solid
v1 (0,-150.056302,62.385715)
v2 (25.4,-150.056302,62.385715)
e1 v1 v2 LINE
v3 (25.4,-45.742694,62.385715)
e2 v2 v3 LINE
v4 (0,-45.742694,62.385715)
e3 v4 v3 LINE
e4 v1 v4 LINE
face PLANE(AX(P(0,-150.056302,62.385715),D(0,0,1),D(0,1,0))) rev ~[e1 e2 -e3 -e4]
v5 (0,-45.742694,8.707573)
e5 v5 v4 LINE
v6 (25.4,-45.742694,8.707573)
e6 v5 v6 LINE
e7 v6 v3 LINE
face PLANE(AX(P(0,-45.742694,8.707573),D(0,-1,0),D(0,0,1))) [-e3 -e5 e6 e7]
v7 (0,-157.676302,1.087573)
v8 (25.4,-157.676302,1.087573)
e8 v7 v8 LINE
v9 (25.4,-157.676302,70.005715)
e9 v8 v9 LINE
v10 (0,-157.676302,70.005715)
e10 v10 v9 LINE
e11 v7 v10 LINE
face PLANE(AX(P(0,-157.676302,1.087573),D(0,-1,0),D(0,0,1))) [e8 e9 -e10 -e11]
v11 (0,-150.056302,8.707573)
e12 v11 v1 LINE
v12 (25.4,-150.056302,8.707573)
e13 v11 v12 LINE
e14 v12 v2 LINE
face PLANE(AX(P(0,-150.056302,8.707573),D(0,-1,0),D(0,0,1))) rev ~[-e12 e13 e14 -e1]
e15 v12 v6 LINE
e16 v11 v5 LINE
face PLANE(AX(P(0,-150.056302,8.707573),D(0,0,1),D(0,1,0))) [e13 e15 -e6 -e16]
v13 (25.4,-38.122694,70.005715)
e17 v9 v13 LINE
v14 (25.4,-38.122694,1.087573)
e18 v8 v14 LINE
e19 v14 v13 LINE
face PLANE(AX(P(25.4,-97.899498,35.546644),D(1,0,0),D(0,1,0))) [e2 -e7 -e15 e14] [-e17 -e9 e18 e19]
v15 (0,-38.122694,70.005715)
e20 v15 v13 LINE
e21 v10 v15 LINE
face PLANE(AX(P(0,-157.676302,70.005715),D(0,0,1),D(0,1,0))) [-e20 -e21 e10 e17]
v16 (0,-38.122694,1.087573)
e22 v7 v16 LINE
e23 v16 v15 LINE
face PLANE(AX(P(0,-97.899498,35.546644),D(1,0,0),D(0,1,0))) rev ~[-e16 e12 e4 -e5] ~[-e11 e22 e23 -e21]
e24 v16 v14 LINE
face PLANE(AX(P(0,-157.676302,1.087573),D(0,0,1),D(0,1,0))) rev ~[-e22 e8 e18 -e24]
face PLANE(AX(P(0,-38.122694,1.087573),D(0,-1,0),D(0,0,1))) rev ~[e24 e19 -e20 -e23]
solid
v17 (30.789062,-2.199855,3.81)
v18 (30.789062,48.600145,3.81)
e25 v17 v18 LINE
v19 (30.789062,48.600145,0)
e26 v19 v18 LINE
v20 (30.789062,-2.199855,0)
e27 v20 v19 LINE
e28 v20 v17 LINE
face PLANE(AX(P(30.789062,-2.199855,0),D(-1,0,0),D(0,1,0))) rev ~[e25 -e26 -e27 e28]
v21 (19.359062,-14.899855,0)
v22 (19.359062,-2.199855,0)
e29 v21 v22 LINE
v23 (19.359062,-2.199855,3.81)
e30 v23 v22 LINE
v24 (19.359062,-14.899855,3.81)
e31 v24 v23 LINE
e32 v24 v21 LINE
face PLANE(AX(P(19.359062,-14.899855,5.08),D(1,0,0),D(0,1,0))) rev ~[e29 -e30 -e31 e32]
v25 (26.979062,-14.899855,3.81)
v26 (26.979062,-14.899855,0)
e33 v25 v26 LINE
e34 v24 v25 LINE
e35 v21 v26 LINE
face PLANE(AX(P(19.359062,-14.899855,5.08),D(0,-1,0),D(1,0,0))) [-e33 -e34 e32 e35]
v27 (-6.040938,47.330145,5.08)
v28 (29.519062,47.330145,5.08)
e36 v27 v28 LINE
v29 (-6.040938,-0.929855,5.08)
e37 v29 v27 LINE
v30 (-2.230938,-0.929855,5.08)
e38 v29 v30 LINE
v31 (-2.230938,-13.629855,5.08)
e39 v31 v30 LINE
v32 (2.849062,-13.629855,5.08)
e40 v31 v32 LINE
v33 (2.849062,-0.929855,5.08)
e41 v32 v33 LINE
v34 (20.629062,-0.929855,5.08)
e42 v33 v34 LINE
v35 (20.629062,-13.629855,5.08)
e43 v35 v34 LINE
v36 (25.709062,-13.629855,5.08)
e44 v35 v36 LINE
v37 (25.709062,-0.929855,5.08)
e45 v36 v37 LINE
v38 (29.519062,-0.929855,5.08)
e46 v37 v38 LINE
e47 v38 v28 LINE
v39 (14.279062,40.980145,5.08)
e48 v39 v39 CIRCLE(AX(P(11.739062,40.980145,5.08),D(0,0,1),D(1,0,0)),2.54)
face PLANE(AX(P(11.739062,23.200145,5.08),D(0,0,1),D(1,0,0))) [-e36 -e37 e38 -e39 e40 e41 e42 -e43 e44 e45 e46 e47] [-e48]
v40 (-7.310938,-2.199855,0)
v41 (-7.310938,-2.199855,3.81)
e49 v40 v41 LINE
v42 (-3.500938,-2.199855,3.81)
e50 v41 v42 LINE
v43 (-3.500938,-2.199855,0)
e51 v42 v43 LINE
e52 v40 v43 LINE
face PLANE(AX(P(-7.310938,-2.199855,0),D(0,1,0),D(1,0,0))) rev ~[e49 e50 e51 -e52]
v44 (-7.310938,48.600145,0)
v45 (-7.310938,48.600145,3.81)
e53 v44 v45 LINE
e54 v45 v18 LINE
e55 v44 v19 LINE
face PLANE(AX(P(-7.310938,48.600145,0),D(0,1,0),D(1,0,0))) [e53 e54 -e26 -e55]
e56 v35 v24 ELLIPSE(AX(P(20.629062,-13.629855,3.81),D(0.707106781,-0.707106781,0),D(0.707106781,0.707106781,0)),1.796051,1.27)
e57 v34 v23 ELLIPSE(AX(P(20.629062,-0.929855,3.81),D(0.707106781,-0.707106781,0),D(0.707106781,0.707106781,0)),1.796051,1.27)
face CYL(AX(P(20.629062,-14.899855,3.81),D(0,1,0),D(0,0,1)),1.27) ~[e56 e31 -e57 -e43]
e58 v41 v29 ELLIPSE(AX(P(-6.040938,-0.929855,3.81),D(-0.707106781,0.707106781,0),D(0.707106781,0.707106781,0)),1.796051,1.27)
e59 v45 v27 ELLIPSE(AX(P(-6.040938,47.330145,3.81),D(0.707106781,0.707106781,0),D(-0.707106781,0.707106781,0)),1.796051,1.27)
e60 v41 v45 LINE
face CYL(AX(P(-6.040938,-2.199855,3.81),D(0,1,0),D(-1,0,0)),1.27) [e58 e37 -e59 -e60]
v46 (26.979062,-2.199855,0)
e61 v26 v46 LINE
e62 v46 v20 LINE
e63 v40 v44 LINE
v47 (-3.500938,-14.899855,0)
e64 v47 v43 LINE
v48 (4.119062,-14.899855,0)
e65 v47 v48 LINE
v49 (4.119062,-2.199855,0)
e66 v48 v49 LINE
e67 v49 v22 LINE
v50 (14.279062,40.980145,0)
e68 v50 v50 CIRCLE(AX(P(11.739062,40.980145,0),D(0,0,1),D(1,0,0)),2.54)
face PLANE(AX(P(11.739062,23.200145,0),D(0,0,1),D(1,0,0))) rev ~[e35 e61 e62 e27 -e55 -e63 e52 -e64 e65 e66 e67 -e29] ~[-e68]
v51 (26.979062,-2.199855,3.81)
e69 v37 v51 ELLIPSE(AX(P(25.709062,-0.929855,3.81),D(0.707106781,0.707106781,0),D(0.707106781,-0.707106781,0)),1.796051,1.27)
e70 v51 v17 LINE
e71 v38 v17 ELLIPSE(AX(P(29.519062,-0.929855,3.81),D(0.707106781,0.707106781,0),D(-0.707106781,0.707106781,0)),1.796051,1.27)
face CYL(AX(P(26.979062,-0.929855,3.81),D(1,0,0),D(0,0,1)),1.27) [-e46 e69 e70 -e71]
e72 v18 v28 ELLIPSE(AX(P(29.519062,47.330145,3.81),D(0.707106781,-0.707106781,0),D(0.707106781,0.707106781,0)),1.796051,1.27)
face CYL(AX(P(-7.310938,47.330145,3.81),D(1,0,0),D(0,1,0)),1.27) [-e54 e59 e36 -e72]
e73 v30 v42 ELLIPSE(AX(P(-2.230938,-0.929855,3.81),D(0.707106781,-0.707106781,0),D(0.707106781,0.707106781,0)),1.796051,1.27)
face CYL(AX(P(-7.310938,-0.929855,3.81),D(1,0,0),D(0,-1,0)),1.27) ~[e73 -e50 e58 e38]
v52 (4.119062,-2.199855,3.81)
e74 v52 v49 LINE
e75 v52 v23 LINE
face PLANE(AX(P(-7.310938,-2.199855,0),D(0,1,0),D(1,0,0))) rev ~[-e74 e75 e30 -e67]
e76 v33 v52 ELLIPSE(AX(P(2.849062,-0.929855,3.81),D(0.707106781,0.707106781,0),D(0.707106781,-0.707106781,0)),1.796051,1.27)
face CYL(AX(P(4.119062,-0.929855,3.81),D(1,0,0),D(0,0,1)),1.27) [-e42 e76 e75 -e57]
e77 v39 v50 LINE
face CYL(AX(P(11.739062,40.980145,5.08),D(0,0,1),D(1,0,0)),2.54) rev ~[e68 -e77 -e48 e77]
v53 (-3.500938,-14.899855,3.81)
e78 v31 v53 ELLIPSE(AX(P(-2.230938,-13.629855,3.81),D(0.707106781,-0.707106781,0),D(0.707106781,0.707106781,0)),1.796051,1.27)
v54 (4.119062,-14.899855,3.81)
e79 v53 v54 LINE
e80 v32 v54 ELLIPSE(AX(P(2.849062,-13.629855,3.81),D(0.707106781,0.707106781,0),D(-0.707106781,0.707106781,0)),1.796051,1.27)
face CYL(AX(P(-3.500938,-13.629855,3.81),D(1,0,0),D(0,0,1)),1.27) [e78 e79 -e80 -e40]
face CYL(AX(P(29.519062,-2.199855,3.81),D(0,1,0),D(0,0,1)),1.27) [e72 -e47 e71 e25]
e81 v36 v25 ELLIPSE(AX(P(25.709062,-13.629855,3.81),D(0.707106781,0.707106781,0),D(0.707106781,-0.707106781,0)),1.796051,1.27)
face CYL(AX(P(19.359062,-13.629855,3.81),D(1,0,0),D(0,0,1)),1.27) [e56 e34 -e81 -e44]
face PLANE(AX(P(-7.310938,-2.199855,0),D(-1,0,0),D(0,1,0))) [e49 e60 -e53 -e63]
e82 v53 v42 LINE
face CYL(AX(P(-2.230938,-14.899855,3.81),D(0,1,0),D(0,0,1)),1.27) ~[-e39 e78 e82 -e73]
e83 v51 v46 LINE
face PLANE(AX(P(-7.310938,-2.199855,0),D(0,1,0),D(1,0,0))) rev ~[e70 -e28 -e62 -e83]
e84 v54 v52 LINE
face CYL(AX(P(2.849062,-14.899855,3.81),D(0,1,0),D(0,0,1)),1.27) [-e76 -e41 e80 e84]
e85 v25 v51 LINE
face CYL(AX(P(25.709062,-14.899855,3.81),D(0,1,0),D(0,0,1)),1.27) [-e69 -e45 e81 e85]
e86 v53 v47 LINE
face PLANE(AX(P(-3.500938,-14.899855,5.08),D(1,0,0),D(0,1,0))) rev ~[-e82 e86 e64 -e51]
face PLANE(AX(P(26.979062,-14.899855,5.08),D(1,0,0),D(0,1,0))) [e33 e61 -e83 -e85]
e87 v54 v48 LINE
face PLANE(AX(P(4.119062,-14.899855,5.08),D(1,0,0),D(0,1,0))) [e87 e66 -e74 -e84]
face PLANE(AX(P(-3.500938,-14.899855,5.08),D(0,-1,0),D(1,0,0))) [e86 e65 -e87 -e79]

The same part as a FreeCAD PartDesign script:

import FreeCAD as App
import Part
import Sketcher

V = App.Vector
Q = App.Units.Quantity


def edges_at(feature, points):
    """Names of the edges that pass closest to the given points."""
    edges = feature.Shape.Edges
    near = lambda p: min(range(len(edges)), key=lambda i: edges[i].distToShape(Part.Vertex(*p))[0])
    return sorted({f"Edge{near(p) + 1}" for p in points})


def add_polygon(sketch, points):
    """Adds a closed chain of lines whose ends are joined by coincident constraints."""
    first, n = sketch.GeometryCount, len(points)
    for a, b in zip(points, points[1:] + points[:1]):
        sketch.addGeometry(Part.LineSegment(App.Vector(*a, 0), App.Vector(*b, 0)), False)
    for i in range(n):
        sketch.addConstraint(Sketcher.Constraint("Coincident", first + i, 2, first + (i + 1) % n, 1))

doc = App.newDocument("Part")
body = doc.addObject("PartDesign::Body", "Body")

sketch1 = body.newObject("Sketcher::SketchObject", "Sketch")
sketch1.AttachmentSupport = (doc.getObject("XY_Plane"), [""])
sketch1.MapMode = "FlatFace"
add_polygon(sketch1, [(-7.310938, 48.600145), (-7.310938, -2.199855), (30.789062, -2.199855), (30.789062, 48.600145)])
sketch1.addConstraint([
    Sketcher.Constraint("Vertical", 0),
    Sketcher.Constraint("Horizontal", 1),
    Sketcher.Constraint("Vertical", 2),
    Sketcher.Constraint("Horizontal", 3),
    Sketcher.Constraint("DistanceY", 0, 2, 0, 1, Q("2 in")),
    Sketcher.Constraint("DistanceX", 1, 1, 1, 2, Q("1.5 in")),
    Sketcher.Constraint("DistanceX", 0, 2, -1, 1, Q("7.310938 mm")),
    Sketcher.Constraint("DistanceY", 0, 2, -1, 1, Q("2.199855 mm")),
])
pad1 = body.newObject("PartDesign::Pad", "Pad")
pad1.Profile = sketch1
pad1.Length = Q("0.2 in")

sketch2 = body.newObject("Sketcher::SketchObject", "Sketch001")
sketch2.AttachmentSupport = (doc.getObject("XY_Plane"), [""])
sketch2.MapMode = "FlatFace"
sketch2.AttachmentOffset = App.Placement(V(0, 0, 0.2 * 25.4), App.Rotation())
sketch2.addGeometry(Part.Circle(V(11.739062, 40.980145, 0), V(0, 0, 1), 2.54), False)
sketch2.addConstraint([
    Sketcher.Constraint("Diameter", 0, Q("0.2 in")),
    Sketcher.Constraint("DistanceX", -1, 1, 0, 3, Q("11.739062 mm")),
    Sketcher.Constraint("DistanceY", -1, 1, 0, 3, Q("40.980145 mm")),
])
pocket1 = body.newObject("PartDesign::Pocket", "Pocket")
pocket1.Profile = sketch2
pocket1.Type = "ThroughAll"

sketch3 = body.newObject("Sketcher::SketchObject", "Sketch002")
sketch3.AttachmentSupport = (doc.getObject("XY_Plane"), [""])
sketch3.MapMode = "FlatFace"
sketch3.AttachmentOffset = App.Placement(V(0, 0, 0.2 * 25.4), App.Rotation())
add_polygon(sketch3, [(19.359062, -2.199855), (19.359062, -14.899855), (26.979062, -14.899855), (26.979062, -2.199855)])
add_polygon(sketch3, [(-3.500938, -2.199855), (-3.500938, -14.899855), (4.119062, -14.899855), (4.119062, -2.199855)])
sketch3.addConstraint([
    Sketcher.Constraint("Vertical", 0),
    Sketcher.Constraint("Horizontal", 1),
    Sketcher.Constraint("Vertical", 2),
    Sketcher.Constraint("Horizontal", 3),
    Sketcher.Constraint("Vertical", 4),
    Sketcher.Constraint("Horizontal", 5),
    Sketcher.Constraint("Vertical", 6),
    Sketcher.Constraint("Horizontal", 7),
    Sketcher.Constraint("Horizontal", 1, 2, 4, 2),
    Sketcher.Constraint("Horizontal", 3, 2, 6, 2),
    Sketcher.Constraint("Equal", 3, 5),
    Sketcher.Constraint("DistanceX", 1, 1, 1, 2, Q("0.3 in")),
    Sketcher.Constraint("DistanceY", 0, 2, 0, 1, Q("0.5 in")),
    Sketcher.Constraint("DistanceX", 4, 2, 0, 2, Q("0.9 in")),
    Sketcher.Constraint("DistanceX", -1, 1, 0, 2, Q("19.359062 mm")),
    Sketcher.Constraint("DistanceY", 0, 2, -1, 1, Q("14.899855 mm")),
])
pad2 = body.newObject("PartDesign::Pad", "Pad001")
pad2.Profile = sketch3
pad2.Length = Q("0.2 in")
pad2.Reversed = True
doc.recompute()

fillet = body.newObject("PartDesign::Fillet", "Fillet")
fillet.Base = (pad2, edges_at(pad2, [
    (-7.311, 23.2, 5.08),
    (11.739, 48.6, 5.08),
    (30.789, 23.2, 5.08),
    (28.884, -2.2, 5.08),
    (23.169, -14.9, 5.08),
    (19.359, -8.55, 5.08),
    (11.739, -2.2, 5.08),
    (4.119, -8.55, 5.08),
    (-3.501, -8.55, 5.08),
    (-5.406, -2.2, 5.08),
    (0.309, -14.9, 5.08),
    (26.979, -8.55, 5.08),
]))
fillet.Radius = Q("0.05 in")
body2 = doc.addObject("PartDesign::Body", "Body001")

sketch4 = body2.newObject("Sketcher::SketchObject", "Sketch003")
sketch4.AttachmentSupport = (doc.getObject("YZ_Plane001"), [""])
sketch4.MapMode = "FlatFace"
add_polygon(sketch4, [(-157.676302, 70.005715), (-157.676302, 1.087573), (-38.122694, 1.087573), (-38.122694, 70.005715)])
add_polygon(sketch4, [(-45.742694, 8.707573), (-150.056302, 8.707573), (-150.056302, 62.385715), (-45.742694, 62.385715)])
sketch4.addConstraint([
    Sketcher.Constraint("Vertical", 0),
    Sketcher.Constraint("Horizontal", 1),
    Sketcher.Constraint("Vertical", 2),
    Sketcher.Constraint("Horizontal", 3),
    Sketcher.Constraint("Horizontal", 4),
    Sketcher.Constraint("Vertical", 5),
    Sketcher.Constraint("Horizontal", 6),
    Sketcher.Constraint("Vertical", 7),
    Sketcher.Constraint("DistanceX", 0, 2, 4, 2, Q("0.3 in")),
    Sketcher.Constraint("DistanceY", 0, 2, 4, 2, Q("0.3 in")),
    Sketcher.Constraint("DistanceY", 5, 2, 3, 2, Q("0.3 in")),
    Sketcher.Constraint("DistanceX", 6, 2, 2, 2, Q("0.3 in")),
    Sketcher.Constraint("DistanceX", 0, 2, -1, 1, Q("157.676302 mm")),
    Sketcher.Constraint("DistanceX", 1, 1, 1, 2, Q("119.553608 mm")),
    Sketcher.Constraint("DistanceY", 0, 2, 0, 1, Q("68.918142 mm")),
    Sketcher.Constraint("DistanceY", -1, 1, 0, 2, Q("1.087573 mm")),
])
pad3 = body2.newObject("PartDesign::Pad", "Pad002")
pad3.Profile = sketch4
pad3.Length = Q("1 in")

doc.recompute()
